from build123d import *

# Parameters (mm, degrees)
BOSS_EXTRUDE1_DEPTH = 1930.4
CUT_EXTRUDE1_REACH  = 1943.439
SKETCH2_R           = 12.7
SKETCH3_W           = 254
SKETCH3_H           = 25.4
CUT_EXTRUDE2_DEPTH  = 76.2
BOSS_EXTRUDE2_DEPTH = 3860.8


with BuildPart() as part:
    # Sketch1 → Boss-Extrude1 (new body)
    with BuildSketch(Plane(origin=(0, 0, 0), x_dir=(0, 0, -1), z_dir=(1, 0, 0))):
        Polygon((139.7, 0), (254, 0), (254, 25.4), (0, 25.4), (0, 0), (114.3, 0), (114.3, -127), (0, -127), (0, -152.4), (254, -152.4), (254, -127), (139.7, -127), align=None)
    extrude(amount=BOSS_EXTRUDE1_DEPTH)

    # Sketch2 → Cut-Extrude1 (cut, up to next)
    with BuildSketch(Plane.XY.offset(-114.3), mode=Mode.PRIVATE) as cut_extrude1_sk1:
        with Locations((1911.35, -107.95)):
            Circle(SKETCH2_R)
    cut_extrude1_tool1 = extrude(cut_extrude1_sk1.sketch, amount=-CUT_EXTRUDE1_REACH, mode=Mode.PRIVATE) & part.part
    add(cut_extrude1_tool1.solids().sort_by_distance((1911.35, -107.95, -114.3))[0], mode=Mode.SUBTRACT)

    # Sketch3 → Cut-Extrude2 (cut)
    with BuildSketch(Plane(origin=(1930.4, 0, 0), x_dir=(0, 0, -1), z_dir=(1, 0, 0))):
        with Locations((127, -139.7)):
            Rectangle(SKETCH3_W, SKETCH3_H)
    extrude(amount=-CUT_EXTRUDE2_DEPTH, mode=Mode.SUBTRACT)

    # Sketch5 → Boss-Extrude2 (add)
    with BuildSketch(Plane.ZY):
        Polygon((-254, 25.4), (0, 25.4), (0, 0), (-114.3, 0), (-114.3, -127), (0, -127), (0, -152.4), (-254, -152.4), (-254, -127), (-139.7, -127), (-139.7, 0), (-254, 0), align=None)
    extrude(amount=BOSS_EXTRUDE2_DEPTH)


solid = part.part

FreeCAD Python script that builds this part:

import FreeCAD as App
import Part
import Sketcher
from FreeCAD import Vector
Q = App.Units.Quantity


def add_polygon(sketch, points):
    """Adds a closed chain of lines whose ends are joined by coincident constraints."""
    first, n = sketch.GeometryCount, len(points)
    for a, b in zip(points, points[1:] + points[:1]):
        sketch.addGeometry(Part.LineSegment(App.Vector(*a, 0), App.Vector(*b, 0)), False)
    for i in range(n):
        sketch.addConstraint(Sketcher.Constraint("Coincident", first + i, 2, first + (i + 1) % n, 1))

doc = App.newDocument("Part")
body = doc.addObject("PartDesign::Body", "Body")

# Sketch on YZ plane
sketch1 = body.newObject("Sketcher::SketchObject", "Sketch")
sketch1.AttachmentSupport = (doc.getObject("YZ_Plane"), [""])
sketch1.MapMode = "FlatFace"
add_polygon(sketch1, [(0, -140), (0, -254), (25, -254), (25, 0), (0, 0), (0, -114), (-127, -114), (-127, 0), (-152, 0), (-152, -254), (-127, -254), (-127, -140)])  # lines 0-11
sketch1.addConstraint(Sketcher.Constraint("Vertical", 0))
sketch1.addConstraint(Sketcher.Constraint("Horizontal", 1))
sketch1.addConstraint(Sketcher.Constraint("Vertical", 2))
sketch1.addConstraint(Sketcher.Constraint("Horizontal", 3))
sketch1.addConstraint(Sketcher.Constraint("Vertical", 4))
sketch1.addConstraint(Sketcher.Constraint("Horizontal", 5))
sketch1.addConstraint(Sketcher.Constraint("Vertical", 6))
sketch1.addConstraint(Sketcher.Constraint("Horizontal", 7))
sketch1.addConstraint(Sketcher.Constraint("Vertical", 8))
sketch1.addConstraint(Sketcher.Constraint("Horizontal", 9))
sketch1.addConstraint(Sketcher.Constraint("Vertical", 10))
sketch1.addConstraint(Sketcher.Constraint("Horizontal", 11))
sketch1.addConstraint(Sketcher.Constraint("Coincident", 3, 2, -1, 1))
sketch1.addConstraint(Sketcher.Constraint("PointOnObject", 0, 2, -2))
sketch1.addConstraint(Sketcher.Constraint("PointOnObject", 6, 2, -1))
sketch1.addConstraint(Sketcher.Constraint("Horizontal", 1, 2, 8, 2))
sketch1.addConstraint(Sketcher.Constraint("Vertical", 6, 2, 9, 2))
sketch1.addConstraint(Sketcher.Constraint("Equal", 3, 7))
sketch1.addConstraint(Sketcher.Constraint("Equal", 0, 4))
sketch1.addConstraint(Sketcher.Constraint("DistanceX", 1, 1, 1, 2, Q("1 in")))
sketch1.addConstraint(Sketcher.Constraint("DistanceX", 5, 2, 5, 1, Q("5 in")))
sketch1.addConstraint(Sketcher.Constraint("DistanceY", 2, 1, 2, 2, Q("10 in")))
sketch1.addConstraint(Sketcher.Constraint("DistanceY", 0, 2, 0, 1, Q("4.5 in")))
pad1 = body.newObject("PartDesign::Pad", "Pad")
pad1.Profile = sketch1
pad1.Length = Q("76 in")

# Sketch on XY plane
sketch2 = body.newObject("Sketcher::SketchObject", "Sketch001")
sketch2.AttachmentSupport = (doc.getObject("XY_Plane"), [""])
sketch2.MapMode = "FlatFace"
sketch2.AttachmentOffset = App.Placement(Vector(0, 0, -4.5 * 25.4), App.Rotation())
sketch2.addGeometry(Part.Circle(Vector(1911, -108, 0), Vector(0, 0, 1), 13), False)
sketch2.addConstraint(Sketcher.Constraint("Diameter", 0, Q("1 in")))
sketch2.addConstraint(Sketcher.Constraint("DistanceX", -1, 1, 0, 3, Q("75.25 in")))
sketch2.addConstraint(Sketcher.Constraint("DistanceY", 0, 3, -1, 1, Q("4.25 in")))
pocket1 = body.newObject("PartDesign::Pocket", "Pocket")
pocket1.Profile = sketch2
pocket1.Type = "UpToFirst"

# Sketch on YZ plane
sketch3 = body.newObject("Sketcher::SketchObject", "Sketch002")
sketch3.AttachmentSupport = (doc.getObject("YZ_Plane"), [""])
sketch3.MapMode = "FlatFace"
sketch3.AttachmentOffset = App.Placement(Vector(0, 0, 76 * 25.4), App.Rotation())
add_polygon(sketch3, [(-127, 0), (-152, 0), (-152, -254), (-127, -254)])  # lines 0-3
sketch3.addConstraint(Sketcher.Constraint("Horizontal", 0))
sketch3.addConstraint(Sketcher.Constraint("Vertical", 1))
sketch3.addConstraint(Sketcher.Constraint("Horizontal", 2))
sketch3.addConstraint(Sketcher.Constraint("Vertical", 3))
sketch3.addConstraint(Sketcher.Constraint("PointOnObject", 0, 2, -1))
sketch3.addConstraint(Sketcher.Constraint("DistanceX", 0, 2, 0, 1, Q("1 in")))
sketch3.addConstraint(Sketcher.Constraint("DistanceY", 1, 2, 1, 1, Q("10 in")))
sketch3.addConstraint(Sketcher.Constraint("DistanceX", 0, 2, -1, 1, Q("6 in")))
pocket2 = body.newObject("PartDesign::Pocket", "Pocket001")
pocket2.Profile = sketch3
pocket2.Length = Q("3 in")

# Sketch on YZ plane
sketch4 = body.newObject("Sketcher::SketchObject", "Sketch003")
sketch4.AttachmentSupport = (doc.getObject("YZ_Plane"), [""])
sketch4.MapMode = "FlatFace"
add_polygon(sketch4, [(25, 0), (25, -254), (0, -254), (0, -140), (-127, -140), (-127, -254), (-152, -254), (-152, 0), (-127, 0), (-127, -114), (0, -114), (0, 0)])  # lines 0-11
sketch4.addConstraint(Sketcher.Constraint("Vertical", 0))
sketch4.addConstraint(Sketcher.Constraint("Horizontal", 1))
sketch4.addConstraint(Sketcher.Constraint("Vertical", 2))
sketch4.addConstraint(Sketcher.Constraint("Horizontal", 3))
sketch4.addConstraint(Sketcher.Constraint("Vertical", 4))
sketch4.addConstraint(Sketcher.Constraint("Horizontal", 5))
sketch4.addConstraint(Sketcher.Constraint("Vertical", 6))
sketch4.addConstraint(Sketcher.Constraint("Horizontal", 7))
sketch4.addConstraint(Sketcher.Constraint("Vertical", 8))
sketch4.addConstraint(Sketcher.Constraint("Horizontal", 9))
sketch4.addConstraint(Sketcher.Constraint("Vertical", 10))
sketch4.addConstraint(Sketcher.Constraint("Horizontal", 11))
sketch4.addConstraint(Sketcher.Constraint("Coincident", 10, 2, -1, 1))
sketch4.addConstraint(Sketcher.Constraint("PointOnObject", 1, 2, -2))
sketch4.addConstraint(Sketcher.Constraint("PointOnObject", 6, 2, -1))
sketch4.addConstraint(Sketcher.Constraint("Horizontal", 1, 2, 4, 2))
sketch4.addConstraint(Sketcher.Constraint("Vertical", 4, 2, 7, 2))
sketch4.addConstraint(Sketcher.Constraint("Equal", 1, 5))
sketch4.addConstraint(Sketcher.Constraint("Equal", 4, 8))
sketch4.addConstraint(Sketcher.Constraint("DistanceX", 1, 2, 1, 1, Q("1 in")))
sketch4.addConstraint(Sketcher.Constraint("DistanceX", 3, 2, 3, 1, Q("5 in")))
sketch4.addConstraint(Sketcher.Constraint("DistanceY", 0, 2, 0, 1, Q("10 in")))
sketch4.addConstraint(Sketcher.Constraint("DistanceY", 2, 1, 2, 2, Q("4.5 in")))
pad2 = body.newObject("PartDesign::Pad", "Pad001")
pad2.Profile = sketch4
pad2.Length = Q("152 in")
pad2.Reversed = True

doc.recompute()
